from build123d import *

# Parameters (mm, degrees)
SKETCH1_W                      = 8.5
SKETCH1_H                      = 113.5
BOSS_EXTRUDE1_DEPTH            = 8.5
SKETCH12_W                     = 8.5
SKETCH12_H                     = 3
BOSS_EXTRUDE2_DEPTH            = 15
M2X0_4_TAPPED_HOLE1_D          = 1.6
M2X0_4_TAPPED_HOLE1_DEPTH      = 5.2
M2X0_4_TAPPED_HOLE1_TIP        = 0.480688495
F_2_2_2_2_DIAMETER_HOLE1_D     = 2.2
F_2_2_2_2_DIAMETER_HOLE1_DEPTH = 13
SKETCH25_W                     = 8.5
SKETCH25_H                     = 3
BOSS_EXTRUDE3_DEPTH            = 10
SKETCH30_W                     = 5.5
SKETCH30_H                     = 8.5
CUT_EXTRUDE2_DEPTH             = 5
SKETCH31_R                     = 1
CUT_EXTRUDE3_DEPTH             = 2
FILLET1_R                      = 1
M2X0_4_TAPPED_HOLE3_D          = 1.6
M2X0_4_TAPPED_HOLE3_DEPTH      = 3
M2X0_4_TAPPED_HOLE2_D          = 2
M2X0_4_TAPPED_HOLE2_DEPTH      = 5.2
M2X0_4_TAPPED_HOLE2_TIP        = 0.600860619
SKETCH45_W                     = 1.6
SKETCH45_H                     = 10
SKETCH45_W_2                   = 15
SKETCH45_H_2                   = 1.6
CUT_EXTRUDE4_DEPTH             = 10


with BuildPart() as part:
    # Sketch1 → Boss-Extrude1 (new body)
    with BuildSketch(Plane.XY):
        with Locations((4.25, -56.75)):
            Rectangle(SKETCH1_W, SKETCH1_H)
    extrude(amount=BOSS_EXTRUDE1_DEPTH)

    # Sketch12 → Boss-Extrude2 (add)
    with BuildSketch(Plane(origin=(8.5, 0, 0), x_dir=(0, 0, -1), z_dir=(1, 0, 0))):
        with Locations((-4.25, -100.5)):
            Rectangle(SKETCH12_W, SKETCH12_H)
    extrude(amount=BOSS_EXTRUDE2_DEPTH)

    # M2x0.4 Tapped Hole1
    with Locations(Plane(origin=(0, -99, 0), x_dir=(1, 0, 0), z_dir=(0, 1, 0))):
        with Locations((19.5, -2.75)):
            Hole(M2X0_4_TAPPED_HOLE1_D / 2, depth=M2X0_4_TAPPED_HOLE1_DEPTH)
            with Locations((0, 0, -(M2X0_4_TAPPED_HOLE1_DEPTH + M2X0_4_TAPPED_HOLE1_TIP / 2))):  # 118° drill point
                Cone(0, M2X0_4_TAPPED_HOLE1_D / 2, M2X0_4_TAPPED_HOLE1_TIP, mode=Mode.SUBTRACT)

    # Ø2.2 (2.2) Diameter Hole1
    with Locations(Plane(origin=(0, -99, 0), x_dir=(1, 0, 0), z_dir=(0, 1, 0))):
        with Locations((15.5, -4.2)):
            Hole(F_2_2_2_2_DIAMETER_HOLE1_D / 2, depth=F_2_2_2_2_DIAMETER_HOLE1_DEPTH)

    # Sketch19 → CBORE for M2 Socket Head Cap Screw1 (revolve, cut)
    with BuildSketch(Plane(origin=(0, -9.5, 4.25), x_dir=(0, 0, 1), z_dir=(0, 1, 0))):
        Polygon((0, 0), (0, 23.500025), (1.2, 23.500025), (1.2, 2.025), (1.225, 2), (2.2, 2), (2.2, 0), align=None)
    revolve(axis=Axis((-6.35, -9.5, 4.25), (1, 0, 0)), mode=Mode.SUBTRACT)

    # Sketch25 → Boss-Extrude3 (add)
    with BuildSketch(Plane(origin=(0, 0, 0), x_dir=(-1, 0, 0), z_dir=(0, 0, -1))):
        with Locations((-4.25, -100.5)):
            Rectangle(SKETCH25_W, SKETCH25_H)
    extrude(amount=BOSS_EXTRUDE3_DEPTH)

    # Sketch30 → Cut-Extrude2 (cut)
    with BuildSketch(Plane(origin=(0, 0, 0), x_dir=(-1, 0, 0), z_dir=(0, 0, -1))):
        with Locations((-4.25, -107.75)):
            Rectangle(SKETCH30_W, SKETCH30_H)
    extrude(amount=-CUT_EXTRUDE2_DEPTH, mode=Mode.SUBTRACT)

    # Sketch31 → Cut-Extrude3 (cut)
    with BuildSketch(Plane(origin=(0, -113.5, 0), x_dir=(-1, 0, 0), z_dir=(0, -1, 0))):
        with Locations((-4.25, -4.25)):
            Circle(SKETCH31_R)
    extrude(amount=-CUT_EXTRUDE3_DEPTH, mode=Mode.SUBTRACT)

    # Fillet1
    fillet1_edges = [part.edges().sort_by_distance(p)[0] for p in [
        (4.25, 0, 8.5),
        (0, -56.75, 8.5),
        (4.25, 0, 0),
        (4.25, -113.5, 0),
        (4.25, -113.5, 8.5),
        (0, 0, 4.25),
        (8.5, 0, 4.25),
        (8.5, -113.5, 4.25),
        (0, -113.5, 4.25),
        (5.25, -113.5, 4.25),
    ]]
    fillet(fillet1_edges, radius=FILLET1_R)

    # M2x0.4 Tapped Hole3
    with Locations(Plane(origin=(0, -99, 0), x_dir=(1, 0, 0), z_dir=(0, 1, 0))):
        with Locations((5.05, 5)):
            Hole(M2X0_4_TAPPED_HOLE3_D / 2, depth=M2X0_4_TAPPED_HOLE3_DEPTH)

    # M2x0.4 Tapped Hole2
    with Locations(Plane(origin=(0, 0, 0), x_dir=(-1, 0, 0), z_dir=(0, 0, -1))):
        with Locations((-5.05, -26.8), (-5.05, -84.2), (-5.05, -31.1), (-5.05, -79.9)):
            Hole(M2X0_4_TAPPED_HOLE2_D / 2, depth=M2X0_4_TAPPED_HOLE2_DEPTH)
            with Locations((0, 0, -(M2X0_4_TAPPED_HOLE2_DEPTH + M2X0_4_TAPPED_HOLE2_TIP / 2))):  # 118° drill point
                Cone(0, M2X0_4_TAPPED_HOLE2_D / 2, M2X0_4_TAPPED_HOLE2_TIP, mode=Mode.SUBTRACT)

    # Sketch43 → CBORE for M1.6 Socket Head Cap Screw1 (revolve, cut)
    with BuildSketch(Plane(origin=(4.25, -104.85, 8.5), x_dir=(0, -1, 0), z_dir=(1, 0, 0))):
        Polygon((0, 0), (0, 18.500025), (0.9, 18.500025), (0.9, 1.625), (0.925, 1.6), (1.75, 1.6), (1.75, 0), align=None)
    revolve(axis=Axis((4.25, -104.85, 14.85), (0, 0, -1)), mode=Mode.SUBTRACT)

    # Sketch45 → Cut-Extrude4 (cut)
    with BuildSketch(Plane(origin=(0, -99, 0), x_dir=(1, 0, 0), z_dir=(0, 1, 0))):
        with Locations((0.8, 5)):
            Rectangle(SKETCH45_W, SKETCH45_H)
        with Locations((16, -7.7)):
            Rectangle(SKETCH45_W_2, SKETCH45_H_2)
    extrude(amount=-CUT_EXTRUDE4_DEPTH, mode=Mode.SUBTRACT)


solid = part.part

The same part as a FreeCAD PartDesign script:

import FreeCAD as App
import Part
import Sketcher
from FreeCAD import Vector
Q = App.Units.Quantity


def edges_at(feature, points):
    """Names of the edges that pass closest to the given points."""
    edges = feature.Shape.Edges
    near = lambda p: min(range(len(edges)), key=lambda i: edges[i].distToShape(Part.Vertex(*p))[0])
    return sorted({f"Edge{near(p) + 1}" for p in points})

doc = App.newDocument("Part")
body = doc.addObject("PartDesign::Body", "Body")

sketch1 = body.newObject("Sketcher::SketchObject", "Sketch")
sketch1.AttachmentSupport = (doc.getObject("XY_Plane"), [""])
sketch1.MapMode = "FlatFace"
sketch1.addGeometry(Part.LineSegment(Vector(0, 0, 0), Vector(0, -114, 0)), False)
sketch1.addGeometry(Part.LineSegment(Vector(0, -114, 0), Vector(8, -114, 0)), False)
sketch1.addGeometry(Part.LineSegment(Vector(8, -114, 0), Vector(8, 0, 0)), False)
sketch1.addGeometry(Part.LineSegment(Vector(8, 0, 0), Vector(0, 0, 0)), False)
sketch1.addConstraint(Sketcher.Constraint("Coincident", 0, 2, 1, 1))
sketch1.addConstraint(Sketcher.Constraint("Coincident", 1, 2, 2, 1))
sketch1.addConstraint(Sketcher.Constraint("Coincident", 2, 2, 3, 1))
sketch1.addConstraint(Sketcher.Constraint("Coincident", 3, 2, 0, 1))
sketch1.addConstraint(Sketcher.Constraint("Vertical", 0))
sketch1.addConstraint(Sketcher.Constraint("Horizontal", 1))
sketch1.addConstraint(Sketcher.Constraint("Vertical", 2))
sketch1.addConstraint(Sketcher.Constraint("Horizontal", 3))
sketch1.addConstraint(Sketcher.Constraint("Coincident", 3, 2, -1, 1))
sketch1.addConstraint(Sketcher.Constraint("DistanceX", 1, 1, 1, 2, 8.5))
sketch1.addConstraint(Sketcher.Constraint("DistanceY", 0, 2, 0, 1, 113.5))
pad1 = body.newObject("PartDesign::Pad", "Pad")
pad1.Profile = sketch1
pad1.Length = 8.5

sketch2 = body.newObject("Sketcher::SketchObject", "Sketch001")
sketch2.AttachmentSupport = (doc.getObject("YZ_Plane"), [""])
sketch2.MapMode = "FlatFace"
sketch2.AttachmentOffset = App.Placement(Vector(0, 0, 8.5), App.Rotation())
sketch2.addGeometry(Part.LineSegment(Vector(-99, 8.5, 0), Vector(-102, 8.5, 0)), False)
sketch2.addGeometry(Part.LineSegment(Vector(-102, 8.5, 0), Vector(-102, 0, 0)), False)
sketch2.addGeometry(Part.LineSegment(Vector(-102, 0, 0), Vector(-99, 0, 0)), False)
sketch2.addGeometry(Part.LineSegment(Vector(-99, 0, 0), Vector(-99, 8.5, 0)), False)
sketch2.addConstraint(Sketcher.Constraint("Coincident", 0, 2, 1, 1))
sketch2.addConstraint(Sketcher.Constraint("Coincident", 1, 2, 2, 1))
sketch2.addConstraint(Sketcher.Constraint("Coincident", 2, 2, 3, 1))
sketch2.addConstraint(Sketcher.Constraint("Coincident", 3, 2, 0, 1))
sketch2.addConstraint(Sketcher.Constraint("Horizontal", 0))
sketch2.addConstraint(Sketcher.Constraint("Vertical", 1))
sketch2.addConstraint(Sketcher.Constraint("Horizontal", 2))
sketch2.addConstraint(Sketcher.Constraint("Vertical", 3))
sketch2.addConstraint(Sketcher.Constraint("PointOnObject", 1, 2, -1))
sketch2.addConstraint(Sketcher.Constraint("DistanceX", 0, 2, 0, 1, 3.0))
sketch2.addConstraint(Sketcher.Constraint("DistanceY", 1, 2, 1, 1, 8.5))
sketch2.addConstraint(Sketcher.Constraint("DistanceX", 0, 2, -1, 1, 102.0))
pad2 = body.newObject("PartDesign::Pad", "Pad001")
pad2.Profile = sketch2
pad2.Length = 15

sketch3 = body.newObject("Sketcher::SketchObject", "Sketch002")
sketch3.AttachmentSupport = (doc.getObject("XZ_Plane"), [""])
sketch3.MapMode = "FlatFace"
sketch3.AttachmentOffset = App.Placement(Vector(0, 0, 99), App.Rotation())
sketch3.addGeometry(Part.Circle(Vector(19.5, 2.8, 0), Vector(0, 0, 1), 0.8), False)
sketch3.addConstraint(Sketcher.Constraint("Diameter", 0, 1.6))
sketch3.addConstraint(Sketcher.Constraint("DistanceX", -1, 1, 0, 3, 19.5))
sketch3.addConstraint(Sketcher.Constraint("DistanceY", -1, 1, 0, 3, 2.75))
doc.recompute()
hole = body.newObject("PartDesign::Hole", "Hole")
hole.Profile = sketch3
hole.ThreadType = "None"
hole.Diameter = 1.6
hole.DepthType = "Dimension"
hole.Depth = 5.2
hole.DrillPoint = "Angled"
hole.DrillPointAngle = 118
hole.Reversed = True

sketch4 = body.newObject("Sketcher::SketchObject", "Sketch003")
sketch4.AttachmentSupport = (doc.getObject("XZ_Plane"), [""])
sketch4.MapMode = "FlatFace"
sketch4.AttachmentOffset = App.Placement(Vector(0, 0, 99), App.Rotation())
sketch4.addGeometry(Part.Circle(Vector(15.5, 4.2, 0), Vector(0, 0, 1), 1.1), False)
sketch4.addConstraint(Sketcher.Constraint("Diameter", 0, 2.2))
sketch4.addConstraint(Sketcher.Constraint("DistanceX", -1, 1, 0, 3, 15.5))
sketch4.addConstraint(Sketcher.Constraint("DistanceY", -1, 1, 0, 3, 4.2))
doc.recompute()
hole2 = body.newObject("PartDesign::Hole", "Hole001")
hole2.Profile = sketch4
hole2.ThreadType = "None"
hole2.Diameter = 2.2
hole2.DepthType = "Dimension"
hole2.Depth = 13
hole2.DrillPoint = "Flat"
hole2.Reversed = True

sketch5 = body.newObject("Sketcher::SketchObject", "Sketch004")
sketch5.AttachmentSupport = (doc.getObject("XZ_Plane"), [""])
sketch5.MapMode = "FlatFace"
sketch5.AttachmentOffset = App.Placement(Vector(0, 0, 9.5), App.Rotation())
sketch5.addGeometry(Part.LineSegment(Vector(23.500025, 4.25, 0), Vector(0, 4.25, 0)), False)
sketch5.addGeometry(Part.LineSegment(Vector(0, 4.25, 0), Vector(0, 6.45, 0)), False)
sketch5.addGeometry(Part.LineSegment(Vector(0, 6.45, 0), Vector(2, 6.45, 0)), False)
sketch5.addGeometry(Part.LineSegment(Vector(2, 6.45, 0), Vector(2, 5.475, 0)), False)
sketch5.addGeometry(Part.LineSegment(Vector(2, 5.475, 0), Vector(2.025, 5.45, 0)), False)
sketch5.addGeometry(Part.LineSegment(Vector(2.025, 5.45, 0), Vector(23.500025, 5.45, 0)), False)
sketch5.addGeometry(Part.LineSegment(Vector(23.500025, 5.45, 0), Vector(23.500025, 4.25, 0)), False)
sketch5.addGeometry(Part.LineSegment(Vector(0, 4.25, 0), Vector(23.500025, 4.25, 0)), True)
sketch5.addConstraint(Sketcher.Constraint("Coincident", 0, 2, 1, 1))
sketch5.addConstraint(Sketcher.Constraint("Coincident", 1, 2, 2, 1))
sketch5.addConstraint(Sketcher.Constraint("Coincident", 2, 2, 3, 1))
sketch5.addConstraint(Sketcher.Constraint("Coincident", 3, 2, 4, 1))
sketch5.addConstraint(Sketcher.Constraint("Coincident", 4, 2, 5, 1))
sketch5.addConstraint(Sketcher.Constraint("Coincident", 5, 2, 6, 1))
sketch5.addConstraint(Sketcher.Constraint("Coincident", 6, 2, 0, 1))
sketch5.addConstraint(Sketcher.Constraint("Horizontal", 0))
sketch5.addConstraint(Sketcher.Constraint("Vertical", 1))
sketch5.addConstraint(Sketcher.Constraint("Horizontal", 2))
sketch5.addConstraint(Sketcher.Constraint("Vertical", 3))
sketch5.addConstraint(Sketcher.Constraint("Horizontal", 5))
sketch5.addConstraint(Sketcher.Constraint("Vertical", 6))
sketch5.addConstraint(Sketcher.Constraint("Horizontal", 7))
sketch5.addConstraint(Sketcher.Constraint("Coincident", 7, 1, 0, 2))
sketch5.addConstraint(Sketcher.Constraint("PointOnObject", 0, 2, -2))
sketch5.addConstraint(Sketcher.Constraint("Vertical", 5, 2, 7, 2))
sketch5.addConstraint(Sketcher.Constraint("DistanceX", 2, 1, 2, 2, 2.0))
sketch5.addConstraint(Sketcher.Constraint("Angle", 4, Q("-45 deg")))
sketch5.addConstraint(Sketcher.Constraint("DistanceY", 1, 1, 1, 2, 2.2))
sketch5.addConstraint(Sketcher.Constraint("DistanceY", 6, 2, 6, 1, 1.2))
sketch5.addConstraint(Sketcher.Constraint("DistanceY", 3, 2, 3, 1, 0.975))
sketch5.addConstraint(Sketcher.Constraint("DistanceY", -1, 1, 0, 2, 4.25))
sketch5.addConstraint(Sketcher.Constraint("DistanceX", 0, 2, 0, 1, 23.500025))
groove = body.newObject("PartDesign::Groove", "Groove")
groove.Profile = sketch5
groove.ReferenceAxis = (sketch5, ["Axis0"])
groove.Angle = 360

sketch6 = body.newObject("Sketcher::SketchObject", "Sketch005")
sketch6.AttachmentSupport = (doc.getObject("XY_Plane"), [""])
sketch6.MapMode = "FlatFace"
sketch6.addGeometry(Part.LineSegment(Vector(8.5, -99, 0), Vector(8.5, -102, 0)), False)
sketch6.addGeometry(Part.LineSegment(Vector(8.5, -102, 0), Vector(0, -102, 0)), False)
sketch6.addGeometry(Part.LineSegment(Vector(0, -102, 0), Vector(0, -99, 0)), False)
sketch6.addGeometry(Part.LineSegment(Vector(0, -99, 0), Vector(8.5, -99, 0)), False)
sketch6.addConstraint(Sketcher.Constraint("Coincident", 0, 2, 1, 1))
sketch6.addConstraint(Sketcher.Constraint("Coincident", 1, 2, 2, 1))
sketch6.addConstraint(Sketcher.Constraint("Coincident", 2, 2, 3, 1))
sketch6.addConstraint(Sketcher.Constraint("Coincident", 3, 2, 0, 1))
sketch6.addConstraint(Sketcher.Constraint("Vertical", 0))
sketch6.addConstraint(Sketcher.Constraint("Horizontal", 1))
sketch6.addConstraint(Sketcher.Constraint("Vertical", 2))
sketch6.addConstraint(Sketcher.Constraint("Horizontal", 3))
sketch6.addConstraint(Sketcher.Constraint("PointOnObject", 1, 2, -2))
sketch6.addConstraint(Sketcher.Constraint("DistanceY", 0, 2, 0, 1, 3.0))
sketch6.addConstraint(Sketcher.Constraint("DistanceX", 1, 2, 1, 1, 8.5))
sketch6.addConstraint(Sketcher.Constraint("DistanceY", 0, 2, -1, 1, 102.0))
pad3 = body.newObject("PartDesign::Pad", "Pad002")
pad3.Profile = sketch6
pad3.Length = 10
pad3.Reversed = True

sketch7 = body.newObject("Sketcher::SketchObject", "Sketch006")
sketch7.AttachmentSupport = (doc.getObject("XY_Plane"), [""])
sketch7.MapMode = "FlatFace"
sketch7.addGeometry(Part.LineSegment(Vector(7, -104, 0), Vector(7, -112, 0)), False)
sketch7.addGeometry(Part.LineSegment(Vector(7, -112, 0), Vector(2, -112, 0)), False)
sketch7.addGeometry(Part.LineSegment(Vector(2, -112, 0), Vector(2, -104, 0)), False)
sketch7.addGeometry(Part.LineSegment(Vector(2, -104, 0), Vector(7, -104, 0)), False)
sketch7.addConstraint(Sketcher.Constraint("Coincident", 0, 2, 1, 1))
sketch7.addConstraint(Sketcher.Constraint("Coincident", 1, 2, 2, 1))
sketch7.addConstraint(Sketcher.Constraint("Coincident", 2, 2, 3, 1))
sketch7.addConstraint(Sketcher.Constraint("Coincident", 3, 2, 0, 1))
sketch7.addConstraint(Sketcher.Constraint("Vertical", 0))
sketch7.addConstraint(Sketcher.Constraint("Horizontal", 1))
sketch7.addConstraint(Sketcher.Constraint("Vertical", 2))
sketch7.addConstraint(Sketcher.Constraint("Horizontal", 3))
sketch7.addConstraint(Sketcher.Constraint("DistanceX", 1, 2, 1, 1, 5.5))
sketch7.addConstraint(Sketcher.Constraint("DistanceY", 0, 2, 0, 1, 8.5))
sketch7.addConstraint(Sketcher.Constraint("DistanceX", -1, 1, 0, 2, 7.0))
sketch7.addConstraint(Sketcher.Constraint("DistanceY", 0, 2, -1, 1, 112.0))
pocket1 = body.newObject("PartDesign::Pocket", "Pocket")
pocket1.Profile = sketch7
pocket1.Length = 5
pocket1.Reversed = True

sketch8 = body.newObject("Sketcher::SketchObject", "Sketch007")
sketch8.AttachmentSupport = (doc.getObject("XZ_Plane"), [""])
sketch8.MapMode = "FlatFace"
sketch8.AttachmentOffset = App.Placement(Vector(0, 0, 113.5), App.Rotation())
sketch8.addGeometry(Part.Circle(Vector(4.2, 4.2, 0), Vector(0, 0, 1), 1), False)
sketch8.addConstraint(Sketcher.Constraint("Diameter", 0, 2.0))
sketch8.addConstraint(Sketcher.Constraint("DistanceX", -1, 1, 0, 3, 4.25))
sketch8.addConstraint(Sketcher.Constraint("DistanceY", -1, 1, 0, 3, 4.25))
pocket2 = body.newObject("PartDesign::Pocket", "Pocket001")
pocket2.Profile = sketch8
pocket2.Length = 2
doc.recompute()

fillet = body.newObject("PartDesign::Fillet", "Fillet")
fillet.Base = (pocket2, edges_at(pocket2, [
    (4.25, 0, 8.5),
    (0, -56.75, 8.5),
    (4.25, 0, 0),
    (4.25, -113.5, 0),
    (4.25, -113.5, 8.5),
    (0, 0, 4.25),
    (8.5, 0, 4.25),
    (8.5, -113.5, 4.25),
    (0, -113.5, 4.25),
    (5.25, -113.5, 4.25),
]))
fillet.Radius = 1

sketch9 = body.newObject("Sketcher::SketchObject", "Sketch008")
sketch9.AttachmentSupport = (doc.getObject("XZ_Plane"), [""])
sketch9.MapMode = "FlatFace"
sketch9.AttachmentOffset = App.Placement(Vector(0, 0, 99), App.Rotation())
sketch9.addGeometry(Part.Circle(Vector(5, -5, 0), Vector(0, 0, 1), 0.8), False)
sketch9.addConstraint(Sketcher.Constraint("Diameter", 0, 1.6))
sketch9.addConstraint(Sketcher.Constraint("DistanceY", 0, 3, -1, 1, 5.0))
sketch9.addConstraint(Sketcher.Constraint("DistanceX", -1, 1, 0, 3, 5.05))
doc.recompute()
hole3 = body.newObject("PartDesign::Hole", "Hole002")
hole3.Profile = sketch9
hole3.ThreadType = "None"
hole3.Diameter = 1.6
hole3.DepthType = "Dimension"
hole3.Depth = 3
hole3.DrillPoint = "Flat"
hole3.Reversed = True

sketch10 = body.newObject("Sketcher::SketchObject", "Sketch009")
sketch10.AttachmentSupport = (doc.getObject("XY_Plane"), [""])
sketch10.MapMode = "FlatFace"
sketch10.addGeometry(Part.Circle(Vector(5, -26.8, 0), Vector(0, 0, 1), 1), False)
sketch10.addGeometry(Part.Circle(Vector(5, -84.2, 0), Vector(0, 0, 1), 1), False)
sketch10.addGeometry(Part.Circle(Vector(5, -31.1, 0), Vector(0, 0, 1), 1), False)
sketch10.addGeometry(Part.Circle(Vector(5, -79.9, 0), Vector(0, 0, 1), 1), False)
sketch10.addConstraint(Sketcher.Constraint("Equal", 0, 1))
sketch10.addConstraint(Sketcher.Constraint("Equal", 1, 2))
sketch10.addConstraint(Sketcher.Constraint("Equal", 2, 3))
sketch10.addConstraint(Sketcher.Constraint("Vertical", 0, 3, 1, 3))
sketch10.addConstraint(Sketcher.Constraint("Vertical", 1, 3, 2, 3))
sketch10.addConstraint(Sketcher.Constraint("Vertical", 2, 3, 3, 3))
sketch10.addConstraint(Sketcher.Constraint("Diameter", 0, 2.0))
sketch10.addConstraint(Sketcher.Constraint("DistanceY", 0, 3, -1, 1, 26.8))
sketch10.addConstraint(Sketcher.Constraint("DistanceY", 1, 3, -1, 1, 84.2))
sketch10.addConstraint(Sketcher.Constraint("DistanceY", 2, 3, -1, 1, 31.1))
sketch10.addConstraint(Sketcher.Constraint("DistanceY", 3, 3, -1, 1, 79.9))
sketch10.addConstraint(Sketcher.Constraint("DistanceX", -1, 1, 0, 3, 5.05))
doc.recompute()
hole4 = body.newObject("PartDesign::Hole", "Hole003")
hole4.Profile = sketch10
hole4.ThreadType = "None"
hole4.Diameter = 2
hole4.DepthType = "Dimension"
hole4.Depth = 5.2
hole4.DrillPoint = "Angled"
hole4.DrillPointAngle = 118
hole4.Reversed = True

sketch11 = body.newObject("Sketcher::SketchObject", "Sketch010")
sketch11.AttachmentSupport = (doc.getObject("YZ_Plane"), [""])
sketch11.MapMode = "FlatFace"
sketch11.AttachmentOffset = App.Placement(Vector(0, 0, 4.25), App.Rotation())
sketch11.addGeometry(Part.LineSegment(Vector(-104.85, -10.000025, 0), Vector(-104.85, 8.5, 0)), False)
sketch11.addGeometry(Part.LineSegment(Vector(-104.85, 8.5, 0), Vector(-106.6, 8.5, 0)), False)
sketch11.addGeometry(Part.LineSegment(Vector(-106.6, 8.5, 0), Vector(-106.6, 6.9, 0)), False)
sketch11.addGeometry(Part.LineSegment(Vector(-106.6, 6.9, 0), Vector(-105.775, 6.9, 0)), False)
sketch11.addGeometry(Part.LineSegment(Vector(-105.775, 6.9, 0), Vector(-105.75, 6.875, 0)), False)
sketch11.addGeometry(Part.LineSegment(Vector(-105.75, 6.875, 0), Vector(-105.75, -10.000025, 0)), False)
sketch11.addGeometry(Part.LineSegment(Vector(-105.75, -10.000025, 0), Vector(-104.85, -10.000025, 0)), False)
sketch11.addGeometry(Part.LineSegment(Vector(-104.85, 8.5, 0), Vector(-104.85, -10.000025, 0)), True)
sketch11.addConstraint(Sketcher.Constraint("Coincident", 0, 2, 1, 1))
sketch11.addConstraint(Sketcher.Constraint("Coincident", 1, 2, 2, 1))
sketch11.addConstraint(Sketcher.Constraint("Coincident", 2, 2, 3, 1))
sketch11.addConstraint(Sketcher.Constraint("Coincident", 3, 2, 4, 1))
sketch11.addConstraint(Sketcher.Constraint("Coincident", 4, 2, 5, 1))
sketch11.addConstraint(Sketcher.Constraint("Coincident", 5, 2, 6, 1))
sketch11.addConstraint(Sketcher.Constraint("Coincident", 6, 2, 0, 1))
sketch11.addConstraint(Sketcher.Constraint("Vertical", 0))
sketch11.addConstraint(Sketcher.Constraint("Horizontal", 1))
sketch11.addConstraint(Sketcher.Constraint("Vertical", 2))
sketch11.addConstraint(Sketcher.Constraint("Horizontal", 3))
sketch11.addConstraint(Sketcher.Constraint("Vertical", 5))
sketch11.addConstraint(Sketcher.Constraint("Horizontal", 6))
sketch11.addConstraint(Sketcher.Constraint("Vertical", 7))
sketch11.addConstraint(Sketcher.Constraint("Coincident", 7, 1, 0, 2))
sketch11.addConstraint(Sketcher.Constraint("Horizontal", 5, 2, 7, 2))
sketch11.addConstraint(Sketcher.Constraint("Angle", 4, Q("-45 deg")))
sketch11.addConstraint(Sketcher.Constraint("DistanceX", 6, 1, 6, 2, 0.9))
sketch11.addConstraint(Sketcher.Constraint("DistanceY", 2, 2, 2, 1, 1.6))
sketch11.addConstraint(Sketcher.Constraint("DistanceX", 1, 2, 1, 1, 1.75))
sketch11.addConstraint(Sketcher.Constraint("DistanceY", -1, 1, 0, 2, 8.5))
sketch11.addConstraint(Sketcher.Constraint("DistanceX", 1, 2, -1, 1, 106.6))
sketch11.addConstraint(Sketcher.Constraint("DistanceX", 3, 1, 3, 2, 0.825))
sketch11.addConstraint(Sketcher.Constraint("DistanceY", 0, 1, 0, 2, 18.500025))
groove2 = body.newObject("PartDesign::Groove", "Groove001")
groove2.Profile = sketch11
groove2.ReferenceAxis = (sketch11, ["Axis0"])
groove2.Angle = 360

sketch12 = body.newObject("Sketcher::SketchObject", "Sketch011")
sketch12.AttachmentSupport = (doc.getObject("XZ_Plane"), [""])
sketch12.MapMode = "FlatFace"
sketch12.AttachmentOffset = App.Placement(Vector(0, 0, 99), App.Rotation())
sketch12.addGeometry(Part.LineSegment(Vector(0, -10, 0), Vector(0, 0, 0)), False)
sketch12.addGeometry(Part.LineSegment(Vector(0, 0, 0), Vector(1.6, 0, 0)), False)
sketch12.addGeometry(Part.LineSegment(Vector(1.6, 0, 0), Vector(1.6, -10, 0)), False)
sketch12.addGeometry(Part.LineSegment(Vector(1.6, -10, 0), Vector(0, -10, 0)), False)
sketch12.addGeometry(Part.LineSegment(Vector(8.5, 6.9, 0), Vector(8.5, 8.5, 0)), False)
sketch12.addGeometry(Part.LineSegment(Vector(8.5, 8.5, 0), Vector(23.5, 8.5, 0)), False)
sketch12.addGeometry(Part.LineSegment(Vector(23.5, 8.5, 0), Vector(23.5, 6.9, 0)), False)
sketch12.addGeometry(Part.LineSegment(Vector(23.5, 6.9, 0), Vector(8.5, 6.9, 0)), False)
sketch12.addConstraint(Sketcher.Constraint("Coincident", 0, 2, 1, 1))
sketch12.addConstraint(Sketcher.Constraint("Coincident", 1, 2, 2, 1))
sketch12.addConstraint(Sketcher.Constraint("Coincident", 2, 2, 3, 1))
sketch12.addConstraint(Sketcher.Constraint("Coincident", 3, 2, 0, 1))
sketch12.addConstraint(Sketcher.Constraint("Coincident", 4, 2, 5, 1))
sketch12.addConstraint(Sketcher.Constraint("Coincident", 5, 2, 6, 1))
sketch12.addConstraint(Sketcher.Constraint("Coincident", 6, 2, 7, 1))
sketch12.addConstraint(Sketcher.Constraint("Coincident", 7, 2, 4, 1))
sketch12.addConstraint(Sketcher.Constraint("Vertical", 0))
sketch12.addConstraint(Sketcher.Constraint("Horizontal", 1))
sketch12.addConstraint(Sketcher.Constraint("Vertical", 2))
sketch12.addConstraint(Sketcher.Constraint("Horizontal", 3))
sketch12.addConstraint(Sketcher.Constraint("Vertical", 4))
sketch12.addConstraint(Sketcher.Constraint("Horizontal", 5))
sketch12.addConstraint(Sketcher.Constraint("Vertical", 6))
sketch12.addConstraint(Sketcher.Constraint("Horizontal", 7))
sketch12.addConstraint(Sketcher.Constraint("Coincident", 0, 2, -1, 1))
sketch12.addConstraint(Sketcher.Constraint("Equal", 3, 4))
sketch12.addConstraint(Sketcher.Constraint("DistanceX", 5, 1, 5, 2, 15.0))
sketch12.addConstraint(Sketcher.Constraint("DistanceY", 0, 1, 0, 2, 10.0))
sketch12.addConstraint(Sketcher.Constraint("DistanceX", 1, 1, 1, 2, 1.6))
sketch12.addConstraint(Sketcher.Constraint("DistanceX", -1, 1, 4, 2, 8.5))
sketch12.addConstraint(Sketcher.Constraint("DistanceY", -1, 1, 4, 2, 8.5))
pocket3 = body.newObject("PartDesign::Pocket", "Pocket002")
pocket3.Profile = sketch12
pocket3.Length = 10
pocket3.Reversed = True

doc.recompute()
